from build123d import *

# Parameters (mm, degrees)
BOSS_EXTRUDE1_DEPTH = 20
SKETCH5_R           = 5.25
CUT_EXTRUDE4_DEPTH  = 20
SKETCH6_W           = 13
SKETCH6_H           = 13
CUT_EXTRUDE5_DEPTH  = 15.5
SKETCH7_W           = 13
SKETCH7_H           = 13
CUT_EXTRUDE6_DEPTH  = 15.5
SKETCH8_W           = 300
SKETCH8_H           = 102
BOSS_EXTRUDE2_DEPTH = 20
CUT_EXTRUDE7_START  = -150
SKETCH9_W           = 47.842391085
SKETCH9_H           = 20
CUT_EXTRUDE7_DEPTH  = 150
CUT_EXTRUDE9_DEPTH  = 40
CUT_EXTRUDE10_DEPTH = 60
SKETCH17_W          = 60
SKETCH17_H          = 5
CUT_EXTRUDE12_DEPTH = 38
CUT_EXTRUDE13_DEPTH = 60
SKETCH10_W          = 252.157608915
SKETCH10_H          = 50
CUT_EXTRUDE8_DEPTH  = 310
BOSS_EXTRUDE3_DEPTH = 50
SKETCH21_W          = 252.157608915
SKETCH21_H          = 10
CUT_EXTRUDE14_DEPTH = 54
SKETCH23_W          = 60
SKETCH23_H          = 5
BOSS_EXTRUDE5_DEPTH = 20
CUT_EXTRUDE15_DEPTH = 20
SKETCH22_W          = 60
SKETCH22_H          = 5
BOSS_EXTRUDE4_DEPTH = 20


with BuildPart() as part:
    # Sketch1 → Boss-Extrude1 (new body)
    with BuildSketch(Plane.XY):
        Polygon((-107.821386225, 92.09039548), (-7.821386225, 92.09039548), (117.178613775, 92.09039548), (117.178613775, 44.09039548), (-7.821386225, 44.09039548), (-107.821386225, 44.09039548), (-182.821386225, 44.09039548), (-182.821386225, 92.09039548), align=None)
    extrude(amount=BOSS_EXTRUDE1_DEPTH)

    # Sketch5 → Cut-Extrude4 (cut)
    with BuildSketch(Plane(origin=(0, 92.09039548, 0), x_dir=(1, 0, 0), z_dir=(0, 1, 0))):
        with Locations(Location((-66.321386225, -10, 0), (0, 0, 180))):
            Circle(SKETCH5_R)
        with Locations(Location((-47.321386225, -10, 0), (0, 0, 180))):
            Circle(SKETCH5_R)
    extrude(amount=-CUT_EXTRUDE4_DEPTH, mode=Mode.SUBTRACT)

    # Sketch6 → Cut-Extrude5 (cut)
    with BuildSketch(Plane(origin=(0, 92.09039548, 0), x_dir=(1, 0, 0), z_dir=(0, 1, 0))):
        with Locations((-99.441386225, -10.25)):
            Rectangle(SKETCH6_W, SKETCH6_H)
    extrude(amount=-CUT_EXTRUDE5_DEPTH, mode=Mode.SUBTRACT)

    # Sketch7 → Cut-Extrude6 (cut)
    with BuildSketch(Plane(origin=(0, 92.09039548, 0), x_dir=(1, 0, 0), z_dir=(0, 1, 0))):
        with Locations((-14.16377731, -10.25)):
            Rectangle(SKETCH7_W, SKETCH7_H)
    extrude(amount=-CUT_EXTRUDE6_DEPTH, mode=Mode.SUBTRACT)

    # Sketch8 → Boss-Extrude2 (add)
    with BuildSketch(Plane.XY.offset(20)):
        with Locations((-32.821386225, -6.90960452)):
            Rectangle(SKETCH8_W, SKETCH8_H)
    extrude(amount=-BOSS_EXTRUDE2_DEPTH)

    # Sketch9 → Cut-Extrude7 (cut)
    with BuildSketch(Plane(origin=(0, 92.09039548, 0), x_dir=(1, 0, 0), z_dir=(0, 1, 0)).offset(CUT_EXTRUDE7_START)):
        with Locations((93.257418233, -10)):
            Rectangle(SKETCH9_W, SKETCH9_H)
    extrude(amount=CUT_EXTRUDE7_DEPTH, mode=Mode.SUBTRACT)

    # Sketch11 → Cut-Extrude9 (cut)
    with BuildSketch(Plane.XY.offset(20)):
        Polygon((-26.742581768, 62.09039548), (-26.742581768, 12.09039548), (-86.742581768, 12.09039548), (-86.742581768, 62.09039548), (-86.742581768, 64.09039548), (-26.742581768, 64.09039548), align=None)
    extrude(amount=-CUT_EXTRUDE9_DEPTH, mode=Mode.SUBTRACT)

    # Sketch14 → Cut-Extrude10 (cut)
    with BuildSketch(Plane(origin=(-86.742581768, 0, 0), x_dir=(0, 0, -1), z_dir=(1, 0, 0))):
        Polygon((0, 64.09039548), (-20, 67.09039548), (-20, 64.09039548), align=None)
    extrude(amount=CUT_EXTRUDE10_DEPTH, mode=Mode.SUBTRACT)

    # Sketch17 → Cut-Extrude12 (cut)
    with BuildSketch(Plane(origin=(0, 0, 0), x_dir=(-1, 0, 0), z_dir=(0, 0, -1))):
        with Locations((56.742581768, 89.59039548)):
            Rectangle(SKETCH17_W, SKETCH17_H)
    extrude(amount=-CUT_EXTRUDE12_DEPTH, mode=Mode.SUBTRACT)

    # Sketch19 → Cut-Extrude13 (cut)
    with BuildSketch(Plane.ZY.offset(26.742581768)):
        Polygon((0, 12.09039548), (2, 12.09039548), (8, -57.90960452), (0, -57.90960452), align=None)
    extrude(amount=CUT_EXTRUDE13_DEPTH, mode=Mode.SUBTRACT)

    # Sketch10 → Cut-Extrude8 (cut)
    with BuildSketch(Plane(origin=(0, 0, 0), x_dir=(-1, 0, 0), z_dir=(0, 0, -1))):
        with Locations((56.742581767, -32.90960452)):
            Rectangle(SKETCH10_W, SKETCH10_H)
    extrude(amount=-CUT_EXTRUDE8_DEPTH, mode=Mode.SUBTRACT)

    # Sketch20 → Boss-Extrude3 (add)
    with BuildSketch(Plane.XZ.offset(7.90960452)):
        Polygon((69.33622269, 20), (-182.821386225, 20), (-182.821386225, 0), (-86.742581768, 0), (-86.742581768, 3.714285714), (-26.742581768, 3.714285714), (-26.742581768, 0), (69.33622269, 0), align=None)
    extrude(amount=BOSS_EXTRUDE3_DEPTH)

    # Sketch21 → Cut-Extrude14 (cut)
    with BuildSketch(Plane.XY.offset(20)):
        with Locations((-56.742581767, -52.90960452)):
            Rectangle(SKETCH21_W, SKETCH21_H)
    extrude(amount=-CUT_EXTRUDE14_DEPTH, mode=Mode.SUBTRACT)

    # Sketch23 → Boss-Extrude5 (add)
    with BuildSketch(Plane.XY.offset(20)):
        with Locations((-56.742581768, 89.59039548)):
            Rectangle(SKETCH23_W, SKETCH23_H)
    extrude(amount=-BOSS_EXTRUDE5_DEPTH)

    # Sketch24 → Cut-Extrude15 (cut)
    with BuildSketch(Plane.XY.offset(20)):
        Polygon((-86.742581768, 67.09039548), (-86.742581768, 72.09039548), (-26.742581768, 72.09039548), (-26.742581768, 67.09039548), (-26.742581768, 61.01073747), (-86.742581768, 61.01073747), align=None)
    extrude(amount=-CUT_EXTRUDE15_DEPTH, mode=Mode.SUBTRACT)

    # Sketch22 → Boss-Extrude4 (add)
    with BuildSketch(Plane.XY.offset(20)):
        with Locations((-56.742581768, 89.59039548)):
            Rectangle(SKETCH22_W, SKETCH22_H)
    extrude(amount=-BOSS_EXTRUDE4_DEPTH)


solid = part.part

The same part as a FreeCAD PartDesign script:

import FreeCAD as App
import Part
import Sketcher
from FreeCAD import Vector

doc = App.newDocument("Part")
body = doc.addObject("PartDesign::Body", "Body")

sketch1 = doc.addObject("Sketcher::SketchObject", "Sketch")
body.addObject(sketch1)
sketch1.AttachmentSupport = (doc.XY_Plane, [""])
sketch1.MapMode = "FlatFace"
sketch1.addGeometry([
    Part.LineSegment(Vector(117, 92, 0), Vector(-183, 92, 0)),
    Part.LineSegment(Vector(-183, 92, 0), Vector(-183, 44, 0)),
    Part.LineSegment(Vector(-183, 44, 0), Vector(117, 44, 0)),
    Part.LineSegment(Vector(117, 44, 0), Vector(117, 92, 0)),
], False)
sketch1.addConstraint([
    Sketcher.Constraint("Coincident", 0, 2, 1, 1),
    Sketcher.Constraint("Coincident", 1, 2, 2, 1),
    Sketcher.Constraint("Coincident", 2, 2, 3, 1),
    Sketcher.Constraint("Coincident", 3, 2, 0, 1),
    Sketcher.Constraint("Horizontal", 0),
    Sketcher.Constraint("Vertical", 1),
    Sketcher.Constraint("Horizontal", 2),
    Sketcher.Constraint("Vertical", 3),
    Sketcher.Constraint("DistanceX", 0, 2, 0, 1, 300.0),
    Sketcher.Constraint("DistanceY", 1, 2, 1, 1, 48.0),
    Sketcher.Constraint("DistanceX", 0, 2, -1, 1, 182.821386),
    Sketcher.Constraint("DistanceY", -1, 1, 0, 2, 92.090395),
])
pad1 = doc.addObject("PartDesign::Pad", "Pad")
body.addObject(pad1)
pad1.Profile = sketch1
pad1.Length = 20

sketch2 = doc.addObject("Sketcher::SketchObject", "Sketch001")
body.addObject(sketch2)
sketch2.AttachmentSupport = (doc.XZ_Plane, [""])
sketch2.MapMode = "FlatFace"
sketch2.AttachmentOffset = App.Placement(Vector(0, 0, -92.090395), App.Rotation())
sketch2.addGeometry([
    Part.Circle(Vector(-66, 10, 0), Vector(0, 0, 1), 5),
    Part.Circle(Vector(-47, 10, 0), Vector(0, 0, 1), 5),
], False)
sketch2.addConstraint([
    Sketcher.Constraint("Equal", 0, 1),
    Sketcher.Constraint("Horizontal", 0, 3, 1, 3),
    Sketcher.Constraint("Diameter", 0, 10.5),
    Sketcher.Constraint("DistanceY", -1, 1, 0, 3, 10.0),
    Sketcher.Constraint("DistanceX", 0, 3, 1, 3, 19.0),
    Sketcher.Constraint("DistanceX", 0, 3, -1, 1, 66.321386),
])
pocket1 = doc.addObject("PartDesign::Pocket", "Pocket")
body.addObject(pocket1)
pocket1.Profile = sketch2
pocket1.Length = 20
pocket1.Reversed = True

sketch3 = doc.addObject("Sketcher::SketchObject", "Sketch002")
body.addObject(sketch3)
sketch3.AttachmentSupport = (doc.XZ_Plane, [""])
sketch3.MapMode = "FlatFace"
sketch3.AttachmentOffset = App.Placement(Vector(0, 0, -92.090395), App.Rotation())
sketch3.addGeometry([
    Part.LineSegment(Vector(-106, 4, 0), Vector(-106, 17, 0)),
    Part.LineSegment(Vector(-106, 17, 0), Vector(-93, 17, 0)),
    Part.LineSegment(Vector(-93, 17, 0), Vector(-93, 4, 0)),
    Part.LineSegment(Vector(-93, 4, 0), Vector(-106, 4, 0)),
], False)
sketch3.addConstraint([
    Sketcher.Constraint("Coincident", 0, 2, 1, 1),
    Sketcher.Constraint("Coincident", 1, 2, 2, 1),
    Sketcher.Constraint("Coincident", 2, 2, 3, 1),
    Sketcher.Constraint("Coincident", 3, 2, 0, 1),
    Sketcher.Constraint("Vertical", 0),
    Sketcher.Constraint("Horizontal", 1),
    Sketcher.Constraint("Vertical", 2),
    Sketcher.Constraint("Horizontal", 3),
    Sketcher.Constraint("Equal", 3, 0),
    Sketcher.Constraint("DistanceX", 1, 1, 1, 2, 13.0),
    Sketcher.Constraint("DistanceY", -1, 1, 0, 2, 16.75),
    Sketcher.Constraint("DistanceX", 0, 2, -1, 1, 105.941386),
])
pocket2 = doc.addObject("PartDesign::Pocket", "Pocket001")
body.addObject(pocket2)
pocket2.Profile = sketch3
pocket2.Length = 15.5
pocket2.Reversed = True

sketch4 = doc.addObject("Sketcher::SketchObject", "Sketch003")
body.addObject(sketch4)
sketch4.AttachmentSupport = (doc.XZ_Plane, [""])
sketch4.MapMode = "FlatFace"
sketch4.AttachmentOffset = App.Placement(Vector(0, 0, -92.090395), App.Rotation())
sketch4.addGeometry([
    Part.LineSegment(Vector(-21, 4, 0), Vector(-21, 17, 0)),
    Part.LineSegment(Vector(-21, 17, 0), Vector(-8, 17, 0)),
    Part.LineSegment(Vector(-8, 17, 0), Vector(-8, 4, 0)),
    Part.LineSegment(Vector(-8, 4, 0), Vector(-21, 4, 0)),
], False)
sketch4.addConstraint([
    Sketcher.Constraint("Coincident", 0, 2, 1, 1),
    Sketcher.Constraint("Coincident", 1, 2, 2, 1),
    Sketcher.Constraint("Coincident", 2, 2, 3, 1),
    Sketcher.Constraint("Coincident", 3, 2, 0, 1),
    Sketcher.Constraint("Vertical", 0),
    Sketcher.Constraint("Horizontal", 1),
    Sketcher.Constraint("Vertical", 2),
    Sketcher.Constraint("Horizontal", 3),
    Sketcher.Constraint("Equal", 3, 0),
    Sketcher.Constraint("DistanceX", 1, 1, 1, 2, 13.0),
    Sketcher.Constraint("DistanceY", -1, 1, 0, 2, 16.75),
    Sketcher.Constraint("DistanceX", 0, 2, -1, 1, 20.663777),
])
pocket3 = doc.addObject("PartDesign::Pocket", "Pocket002")
body.addObject(pocket3)
pocket3.Profile = sketch4
pocket3.Length = 15.5
pocket3.Reversed = True

sketch5 = doc.addObject("Sketcher::SketchObject", "Sketch004")
body.addObject(sketch5)
sketch5.AttachmentSupport = (doc.XY_Plane, [""])
sketch5.MapMode = "FlatFace"
sketch5.AttachmentOffset = App.Placement(Vector(0, 0, 20), App.Rotation())
sketch5.addGeometry([
    Part.LineSegment(Vector(-183, 44, 0), Vector(-183, -58, 0)),
    Part.LineSegment(Vector(-183, -58, 0), Vector(117, -58, 0)),
    Part.LineSegment(Vector(117, -58, 0), Vector(117, 44, 0)),
    Part.LineSegment(Vector(117, 44, 0), Vector(-183, 44, 0)),
], False)
sketch5.addConstraint([
    Sketcher.Constraint("Coincident", 0, 2, 1, 1),
    Sketcher.Constraint("Coincident", 1, 2, 2, 1),
    Sketcher.Constraint("Coincident", 2, 2, 3, 1),
    Sketcher.Constraint("Coincident", 3, 2, 0, 1),
    Sketcher.Constraint("Vertical", 0),
    Sketcher.Constraint("Horizontal", 1),
    Sketcher.Constraint("Vertical", 2),
    Sketcher.Constraint("Horizontal", 3),
    Sketcher.Constraint("DistanceX", 1, 1, 1, 2, 300.0),
    Sketcher.Constraint("DistanceY", 0, 2, 0, 1, 102.0),
    Sketcher.Constraint("DistanceX", 0, 2, -1, 1, 182.821386),
    Sketcher.Constraint("DistanceY", 0, 2, -1, 1, 57.909605),
])
pad2 = doc.addObject("PartDesign::Pad", "Pad001")
body.addObject(pad2)
pad2.Profile = sketch5
pad2.Length = 20
pad2.Reversed = True

sketch6 = doc.addObject("Sketcher::SketchObject", "Sketch005")
body.addObject(sketch6)
sketch6.AttachmentSupport = (doc.XZ_Plane, [""])
sketch6.MapMode = "FlatFace"
sketch6.AttachmentOffset = App.Placement(Vector(0, 0, 57.909605), App.Rotation())
sketch6.addGeometry([
    Part.LineSegment(Vector(69, 0, 0), Vector(69, 20, 0)),
    Part.LineSegment(Vector(69, 20, 0), Vector(117, 20, 0)),
    Part.LineSegment(Vector(117, 20, 0), Vector(117, 0, 0)),
    Part.LineSegment(Vector(117, 0, 0), Vector(69, 0, 0)),
], False)
sketch6.addConstraint([
    Sketcher.Constraint("Coincident", 0, 2, 1, 1),
    Sketcher.Constraint("Coincident", 1, 2, 2, 1),
    Sketcher.Constraint("Coincident", 2, 2, 3, 1),
    Sketcher.Constraint("Coincident", 3, 2, 0, 1),
    Sketcher.Constraint("Vertical", 0),
    Sketcher.Constraint("Horizontal", 1),
    Sketcher.Constraint("Vertical", 2),
    Sketcher.Constraint("Horizontal", 3),
    Sketcher.Constraint("PointOnObject", 2, 2, -1),
    Sketcher.Constraint("DistanceY", 0, 1, 0, 2, 20.0),
    Sketcher.Constraint("DistanceX", 1, 1, 1, 2, 47.842391),
    Sketcher.Constraint("DistanceX", -1, 1, 0, 2, 69.336223),
])
pocket4 = doc.addObject("PartDesign::Pocket", "Pocket003")
body.addObject(pocket4)
pocket4.Profile = sketch6
pocket4.Length = 150

sketch7 = doc.addObject("Sketcher::SketchObject", "Sketch006")
body.addObject(sketch7)
sketch7.AttachmentSupport = (doc.XY_Plane, [""])
sketch7.MapMode = "FlatFace"
sketch7.AttachmentOffset = App.Placement(Vector(0, 0, 20), App.Rotation())
sketch7.addGeometry([
    Part.LineSegment(Vector(-27, 12, 0), Vector(-27, 64, 0)),
    Part.LineSegment(Vector(-27, 64, 0), Vector(-87, 64, 0)),
    Part.LineSegment(Vector(-87, 64, 0), Vector(-87, 12, 0)),
    Part.LineSegment(Vector(-87, 12, 0), Vector(-27, 12, 0)),
], False)
sketch7.addConstraint([
    Sketcher.Constraint("Coincident", 0, 2, 1, 1),
    Sketcher.Constraint("Coincident", 1, 2, 2, 1),
    Sketcher.Constraint("Coincident", 2, 2, 3, 1),
    Sketcher.Constraint("Coincident", 3, 2, 0, 1),
    Sketcher.Constraint("Vertical", 0),
    Sketcher.Constraint("Horizontal", 1),
    Sketcher.Constraint("Vertical", 2),
    Sketcher.Constraint("Horizontal", 3),
    Sketcher.Constraint("DistanceX", 1, 2, 1, 1, 60.0),
    Sketcher.Constraint("DistanceY", 0, 1, 0, 2, 52.0),
    Sketcher.Constraint("DistanceX", 0, 2, -1, 1, 26.742582),
    Sketcher.Constraint("DistanceY", -1, 1, 0, 2, 64.090395),
])
pocket5 = doc.addObject("PartDesign::Pocket", "Pocket004")
body.addObject(pocket5)
pocket5.Profile = sketch7
pocket5.Length = 40

sketch8 = doc.addObject("Sketcher::SketchObject", "Sketch007")
body.addObject(sketch8)
sketch8.AttachmentSupport = (doc.YZ_Plane, [""])
sketch8.MapMode = "FlatFace"
sketch8.AttachmentOffset = App.Placement(Vector(0, 0, -86.742582), App.Rotation())
sketch8.addGeometry([
    Part.LineSegment(Vector(64.1, 0, 0), Vector(67.1, 20, 0)),
    Part.LineSegment(Vector(67.1, 20, 0), Vector(64.1, 20, 0)),
    Part.LineSegment(Vector(64.1, 20, 0), Vector(64.1, 0, 0)),
], False)
sketch8.addConstraint([
    Sketcher.Constraint("Coincident", 0, 2, 1, 1),
    Sketcher.Constraint("Coincident", 1, 2, 2, 1),
    Sketcher.Constraint("Coincident", 2, 2, 0, 1),
    Sketcher.Constraint("Horizontal", 1),
    Sketcher.Constraint("Vertical", 2),
    Sketcher.Constraint("PointOnObject", 2, 2, -1),
    Sketcher.Constraint("DistanceX", 1, 2, 1, 1, 3.0),
    Sketcher.Constraint("DistanceY", 2, 2, 2, 1, 20.0),
    Sketcher.Constraint("DistanceX", -1, 1, 0, 2, 67.090395),
])
pocket6 = doc.addObject("PartDesign::Pocket", "Pocket005")
body.addObject(pocket6)
pocket6.Profile = sketch8
pocket6.Length = 60
pocket6.Reversed = True

sketch9 = doc.addObject("Sketcher::SketchObject", "Sketch008")
body.addObject(sketch9)
sketch9.AttachmentSupport = (doc.XY_Plane, [""])
sketch9.MapMode = "FlatFace"
sketch9.addGeometry([
    Part.LineSegment(Vector(-27, 92, 0), Vector(-27, 87, 0)),
    Part.LineSegment(Vector(-27, 87, 0), Vector(-87, 87, 0)),
    Part.LineSegment(Vector(-87, 87, 0), Vector(-87, 92, 0)),
    Part.LineSegment(Vector(-87, 92, 0), Vector(-27, 92, 0)),
], False)
sketch9.addConstraint([
    Sketcher.Constraint("Coincident", 0, 2, 1, 1),
    Sketcher.Constraint("Coincident", 1, 2, 2, 1),
    Sketcher.Constraint("Coincident", 2, 2, 3, 1),
    Sketcher.Constraint("Coincident", 3, 2, 0, 1),
    Sketcher.Constraint("Vertical", 0),
    Sketcher.Constraint("Horizontal", 1),
    Sketcher.Constraint("Vertical", 2),
    Sketcher.Constraint("Horizontal", 3),
    Sketcher.Constraint("DistanceX", 1, 2, 1, 1, 60.0),
    Sketcher.Constraint("DistanceY", 0, 2, 0, 1, 5.0),
    Sketcher.Constraint("DistanceX", 0, 2, -1, 1, 26.742582),
    Sketcher.Constraint("DistanceY", -1, 1, 0, 2, 87.090395),
])
pocket7 = doc.addObject("PartDesign::Pocket", "Pocket006")
body.addObject(pocket7)
pocket7.Profile = sketch9
pocket7.Length = 38
pocket7.Reversed = True

sketch10 = doc.addObject("Sketcher::SketchObject", "Sketch009")
body.addObject(sketch10)
sketch10.AttachmentSupport = (doc.YZ_Plane, [""])
sketch10.MapMode = "FlatFace"
sketch10.AttachmentOffset = App.Placement(Vector(0, 0, -26.742582), App.Rotation())
sketch10.addGeometry([
    Part.LineSegment(Vector(12.1, 2, 0), Vector(12.1, 0, 0)),
    Part.LineSegment(Vector(12.1, 0, 0), Vector(-57.9, 0, 0)),
    Part.LineSegment(Vector(-57.9, 0, 0), Vector(-57.9, 8, 0)),
    Part.LineSegment(Vector(-57.9, 8, 0), Vector(12.1, 2, 0)),
], False)
sketch10.addConstraint([
    Sketcher.Constraint("Coincident", 0, 2, 1, 1),
    Sketcher.Constraint("Coincident", 1, 2, 2, 1),
    Sketcher.Constraint("Coincident", 2, 2, 3, 1),
    Sketcher.Constraint("Coincident", 3, 2, 0, 1),
    Sketcher.Constraint("Vertical", 0),
    Sketcher.Constraint("Horizontal", 1),
    Sketcher.Constraint("Vertical", 2),
    Sketcher.Constraint("PointOnObject", 0, 2, -1),
    Sketcher.Constraint("DistanceX", 1, 2, 1, 1, 70.0),
    Sketcher.Constraint("DistanceY", 0, 2, 0, 1, 2.0),
    Sketcher.Constraint("DistanceY", 2, 1, 2, 2, 8.0),
    Sketcher.Constraint("DistanceX", -1, 1, 0, 2, 12.090395),
])
pocket8 = doc.addObject("PartDesign::Pocket", "Pocket007")
body.addObject(pocket8)
pocket8.Profile = sketch10
pocket8.Length = 60

sketch11 = doc.addObject("Sketcher::SketchObject", "Sketch010")
body.addObject(sketch11)
sketch11.AttachmentSupport = (doc.XY_Plane, [""])
sketch11.MapMode = "FlatFace"
sketch11.addGeometry([
    Part.LineSegment(Vector(69, -8, 0), Vector(69, -58, 0)),
    Part.LineSegment(Vector(69, -58, 0), Vector(-183, -58, 0)),
    Part.LineSegment(Vector(-183, -58, 0), Vector(-183, -8, 0)),
    Part.LineSegment(Vector(-183, -8, 0), Vector(69, -8, 0)),
], False)
sketch11.addConstraint([
    Sketcher.Constraint("Coincident", 0, 2, 1, 1),
    Sketcher.Constraint("Coincident", 1, 2, 2, 1),
    Sketcher.Constraint("Coincident", 2, 2, 3, 1),
    Sketcher.Constraint("Coincident", 3, 2, 0, 1),
    Sketcher.Constraint("Vertical", 0),
    Sketcher.Constraint("Horizontal", 1),
    Sketcher.Constraint("Vertical", 2),
    Sketcher.Constraint("Horizontal", 3),
    Sketcher.Constraint("DistanceY", 0, 2, 0, 1, 50.0),
    Sketcher.Constraint("DistanceX", 1, 2, 1, 1, 252.157609),
    Sketcher.Constraint("DistanceX", -1, 1, 0, 2, 69.336223),
    Sketcher.Constraint("DistanceY", 0, 2, -1, 1, 57.909605),
])
pocket9 = doc.addObject("PartDesign::Pocket", "Pocket008")
body.addObject(pocket9)
pocket9.Profile = sketch11
pocket9.Length = 310
pocket9.Reversed = True

sketch12 = doc.addObject("Sketcher::SketchObject", "Sketch011")
body.addObject(sketch12)
sketch12.AttachmentSupport = (doc.XZ_Plane, [""])
sketch12.MapMode = "FlatFace"
sketch12.AttachmentOffset = App.Placement(Vector(0, 0, 7.909605), App.Rotation())
sketch12.addGeometry([
    Part.LineSegment(Vector(69.3, 20, 0), Vector(-182.8, 20, 0)),
    Part.LineSegment(Vector(-182.8, 20, 0), Vector(-182.8, 0, 0)),
    Part.LineSegment(Vector(-182.8, 0, 0), Vector(-86.7, 0, 0)),
    Part.LineSegment(Vector(-86.7, 0, 0), Vector(-86.7, 3.7, 0)),
    Part.LineSegment(Vector(-86.7, 3.7, 0), Vector(-26.7, 3.7, 0)),
    Part.LineSegment(Vector(-26.7, 3.7, 0), Vector(-26.7, 0, 0)),
    Part.LineSegment(Vector(-26.7, 0, 0), Vector(69.3, 0, 0)),
    Part.LineSegment(Vector(69.3, 0, 0), Vector(69.3, 20, 0)),
], False)
sketch12.addConstraint([
    Sketcher.Constraint("Coincident", 0, 2, 1, 1),
    Sketcher.Constraint("Coincident", 1, 2, 2, 1),
    Sketcher.Constraint("Coincident", 2, 2, 3, 1),
    Sketcher.Constraint("Coincident", 3, 2, 4, 1),
    Sketcher.Constraint("Coincident", 4, 2, 5, 1),
    Sketcher.Constraint("Coincident", 5, 2, 6, 1),
    Sketcher.Constraint("Coincident", 6, 2, 7, 1),
    Sketcher.Constraint("Coincident", 7, 2, 0, 1),
    Sketcher.Constraint("Horizontal", 0),
    Sketcher.Constraint("Vertical", 1),
    Sketcher.Constraint("Horizontal", 2),
    Sketcher.Constraint("Vertical", 3),
    Sketcher.Constraint("Horizontal", 4),
    Sketcher.Constraint("Vertical", 5),
    Sketcher.Constraint("Horizontal", 6),
    Sketcher.Constraint("Vertical", 7),
    Sketcher.Constraint("PointOnObject", 1, 2, -1),
    Sketcher.Constraint("PointOnObject", 5, 2, -1),
    Sketcher.Constraint("Equal", 2, 6),
    Sketcher.Constraint("DistanceX", 4, 1, 4, 2, 60.0),
    Sketcher.Constraint("DistanceY", 1, 2, 1, 1, 20.0),
    Sketcher.Constraint("DistanceX", 0, 2, 0, 1, 252.157609),
    Sketcher.Constraint("DistanceY", 3, 1, 3, 2, 3.714286),
    Sketcher.Constraint("DistanceX", 2, 2, -1, 1, 86.742582),
])
pad3 = doc.addObject("PartDesign::Pad", "Pad002")
body.addObject(pad3)
pad3.Profile = sketch12
pad3.Length = 50

sketch13 = doc.addObject("Sketcher::SketchObject", "Sketch012")
body.addObject(sketch13)
sketch13.AttachmentSupport = (doc.XY_Plane, [""])
sketch13.MapMode = "FlatFace"
sketch13.AttachmentOffset = App.Placement(Vector(0, 0, 20), App.Rotation())
sketch13.addGeometry([
    Part.LineSegment(Vector(-183, -48, 0), Vector(-183, -58, 0)),
    Part.LineSegment(Vector(-183, -58, 0), Vector(69, -58, 0)),
    Part.LineSegment(Vector(69, -58, 0), Vector(69, -48, 0)),
    Part.LineSegment(Vector(69, -48, 0), Vector(-183, -48, 0)),
], False)
sketch13.addConstraint([
    Sketcher.Constraint("Coincident", 0, 2, 1, 1),
    Sketcher.Constraint("Coincident", 1, 2, 2, 1),
    Sketcher.Constraint("Coincident", 2, 2, 3, 1),
    Sketcher.Constraint("Coincident", 3, 2, 0, 1),
    Sketcher.Constraint("Vertical", 0),
    Sketcher.Constraint("Horizontal", 1),
    Sketcher.Constraint("Vertical", 2),
    Sketcher.Constraint("Horizontal", 3),
    Sketcher.Constraint("DistanceY", 0, 2, 0, 1, 10.0),
    Sketcher.Constraint("DistanceX", 1, 1, 1, 2, 252.157609),
    Sketcher.Constraint("DistanceX", 0, 2, -1, 1, 182.821386),
    Sketcher.Constraint("DistanceY", 0, 2, -1, 1, 57.909605),
])
pocket10 = doc.addObject("PartDesign::Pocket", "Pocket009")
body.addObject(pocket10)
pocket10.Profile = sketch13
pocket10.Length = 54

sketch14 = doc.addObject("Sketcher::SketchObject", "Sketch013")
body.addObject(sketch14)
sketch14.AttachmentSupport = (doc.XY_Plane, [""])
sketch14.MapMode = "FlatFace"
sketch14.AttachmentOffset = App.Placement(Vector(0, 0, 20), App.Rotation())
sketch14.addGeometry([
    Part.LineSegment(Vector(-87, 92, 0), Vector(-87, 87, 0)),
    Part.LineSegment(Vector(-87, 87, 0), Vector(-27, 87, 0)),
    Part.LineSegment(Vector(-27, 87, 0), Vector(-27, 92, 0)),
    Part.LineSegment(Vector(-27, 92, 0), Vector(-87, 92, 0)),
], False)
sketch14.addConstraint([
    Sketcher.Constraint("Coincident", 0, 2, 1, 1),
    Sketcher.Constraint("Coincident", 1, 2, 2, 1),
    Sketcher.Constraint("Coincident", 2, 2, 3, 1),
    Sketcher.Constraint("Coincident", 3, 2, 0, 1),
    Sketcher.Constraint("Vertical", 0),
    Sketcher.Constraint("Horizontal", 1),
    Sketcher.Constraint("Vertical", 2),
    Sketcher.Constraint("Horizontal", 3),
    Sketcher.Constraint("DistanceX", 1, 1, 1, 2, 60.0),
    Sketcher.Constraint("DistanceY", 0, 2, 0, 1, 5.0),
    Sketcher.Constraint("DistanceX", 0, 2, -1, 1, 86.742582),
    Sketcher.Constraint("DistanceY", -1, 1, 0, 2, 87.090395),
])
pad4 = doc.addObject("PartDesign::Pad", "Pad003")
body.addObject(pad4)
pad4.Profile = sketch14
pad4.Length = 20
pad4.Reversed = True

sketch15 = doc.addObject("Sketcher::SketchObject", "Sketch014")
body.addObject(sketch15)
sketch15.AttachmentSupport = (doc.XY_Plane, [""])
sketch15.MapMode = "FlatFace"
sketch15.AttachmentOffset = App.Placement(Vector(0, 0, 20), App.Rotation())
sketch15.addGeometry([
    Part.LineSegment(Vector(-87, 72, 0), Vector(-87, 61, 0)),
    Part.LineSegment(Vector(-87, 61, 0), Vector(-27, 61, 0)),
    Part.LineSegment(Vector(-27, 61, 0), Vector(-27, 72, 0)),
    Part.LineSegment(Vector(-27, 72, 0), Vector(-87, 72, 0)),
], False)
sketch15.addConstraint([
    Sketcher.Constraint("Coincident", 0, 2, 1, 1),
    Sketcher.Constraint("Coincident", 1, 2, 2, 1),
    Sketcher.Constraint("Coincident", 2, 2, 3, 1),
    Sketcher.Constraint("Coincident", 3, 2, 0, 1),
    Sketcher.Constraint("Vertical", 0),
    Sketcher.Constraint("Horizontal", 1),
    Sketcher.Constraint("Vertical", 2),
    Sketcher.Constraint("Horizontal", 3),
    Sketcher.Constraint("DistanceX", 1, 1, 1, 2, 60.0),
    Sketcher.Constraint("DistanceY", 0, 2, 0, 1, 11.079658),
    Sketcher.Constraint("DistanceX", 0, 2, -1, 1, 86.742582),
    Sketcher.Constraint("DistanceY", -1, 1, 0, 2, 61.010737),
])
pocket11 = doc.addObject("PartDesign::Pocket", "Pocket010")
body.addObject(pocket11)
pocket11.Profile = sketch15
pocket11.Length = 20

sketch16 = doc.addObject("Sketcher::SketchObject", "Sketch015")
body.addObject(sketch16)
sketch16.AttachmentSupport = (doc.XY_Plane, [""])
sketch16.MapMode = "FlatFace"
sketch16.AttachmentOffset = App.Placement(Vector(0, 0, 20), App.Rotation())
sketch16.addGeometry([
    Part.LineSegment(Vector(-87, 92, 0), Vector(-87, 87, 0)),
    Part.LineSegment(Vector(-87, 87, 0), Vector(-27, 87, 0)),
    Part.LineSegment(Vector(-27, 87, 0), Vector(-27, 92, 0)),
    Part.LineSegment(Vector(-27, 92, 0), Vector(-87, 92, 0)),
], False)
sketch16.addConstraint([
    Sketcher.Constraint("Coincident", 0, 2, 1, 1),
    Sketcher.Constraint("Coincident", 1, 2, 2, 1),
    Sketcher.Constraint("Coincident", 2, 2, 3, 1),
    Sketcher.Constraint("Coincident", 3, 2, 0, 1),
    Sketcher.Constraint("Vertical", 0),
    Sketcher.Constraint("Horizontal", 1),
    Sketcher.Constraint("Vertical", 2),
    Sketcher.Constraint("Horizontal", 3),
    Sketcher.Constraint("DistanceX", 1, 1, 1, 2, 60.0),
    Sketcher.Constraint("DistanceY", 0, 2, 0, 1, 5.0),
    Sketcher.Constraint("DistanceX", 0, 2, -1, 1, 86.742582),
    Sketcher.Constraint("DistanceY", -1, 1, 0, 2, 87.090395),
])
pad5 = doc.addObject("PartDesign::Pad", "Pad004")
body.addObject(pad5)
pad5.Profile = sketch16
pad5.Length = 20
pad5.Reversed = True

doc.recompute()
